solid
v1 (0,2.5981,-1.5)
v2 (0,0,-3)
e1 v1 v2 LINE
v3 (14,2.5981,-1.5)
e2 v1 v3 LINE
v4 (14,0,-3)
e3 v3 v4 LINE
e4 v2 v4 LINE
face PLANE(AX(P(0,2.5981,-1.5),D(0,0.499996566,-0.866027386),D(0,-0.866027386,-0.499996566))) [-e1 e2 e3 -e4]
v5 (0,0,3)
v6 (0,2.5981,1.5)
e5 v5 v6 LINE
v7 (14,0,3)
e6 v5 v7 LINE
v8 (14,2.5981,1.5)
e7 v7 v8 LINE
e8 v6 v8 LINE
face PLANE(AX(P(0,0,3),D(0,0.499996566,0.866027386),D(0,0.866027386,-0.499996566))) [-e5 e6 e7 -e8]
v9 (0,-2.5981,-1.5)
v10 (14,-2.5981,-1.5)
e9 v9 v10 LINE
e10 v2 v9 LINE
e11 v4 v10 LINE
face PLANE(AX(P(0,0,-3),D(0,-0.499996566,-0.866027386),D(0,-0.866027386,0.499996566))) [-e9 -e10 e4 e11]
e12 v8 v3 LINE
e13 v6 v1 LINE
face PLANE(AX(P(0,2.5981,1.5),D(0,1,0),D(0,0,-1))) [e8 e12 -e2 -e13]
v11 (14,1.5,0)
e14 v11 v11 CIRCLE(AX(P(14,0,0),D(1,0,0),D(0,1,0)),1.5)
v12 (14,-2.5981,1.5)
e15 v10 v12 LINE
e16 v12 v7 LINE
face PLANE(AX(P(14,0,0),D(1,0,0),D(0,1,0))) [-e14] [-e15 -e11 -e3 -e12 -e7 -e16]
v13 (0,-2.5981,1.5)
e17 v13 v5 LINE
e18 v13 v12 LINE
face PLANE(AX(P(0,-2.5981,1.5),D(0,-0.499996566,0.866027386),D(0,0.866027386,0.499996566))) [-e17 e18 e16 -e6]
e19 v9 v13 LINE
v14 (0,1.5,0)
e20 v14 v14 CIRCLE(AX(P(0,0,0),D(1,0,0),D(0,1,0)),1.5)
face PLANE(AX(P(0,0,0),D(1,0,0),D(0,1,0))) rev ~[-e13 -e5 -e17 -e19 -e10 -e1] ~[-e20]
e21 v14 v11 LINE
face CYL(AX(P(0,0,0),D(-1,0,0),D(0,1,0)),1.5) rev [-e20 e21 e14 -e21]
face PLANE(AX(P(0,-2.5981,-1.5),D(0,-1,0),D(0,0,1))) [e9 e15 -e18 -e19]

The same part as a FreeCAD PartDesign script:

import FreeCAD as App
import Part
import Sketcher

V = App.Vector


def add_polygon(sketch, points):
    """Adds a closed chain of lines whose ends are joined by coincident constraints."""
    first, n = sketch.GeometryCount, len(points)
    for a, b in zip(points, points[1:] + points[:1]):
        sketch.addGeometry(Part.LineSegment(App.Vector(*a, 0), App.Vector(*b, 0)), False)
    for i in range(n):
        sketch.addConstraint(Sketcher.Constraint("Coincident", first + i, 2, first + (i + 1) % n, 1))

doc = App.newDocument("Part")
body = doc.addObject("PartDesign::Body", "Body")

sketch1 = body.newObject("Sketcher::SketchObject", "Sketch")
sketch1.AttachmentSupport = (doc.getObject("YZ_Plane"), [""])
sketch1.MapMode = "FlatFace"
add_polygon(sketch1, [(2.6, 1.5), (0, 3), (-2.6, 1.5), (-2.6, -1.5), (0, -3), (2.6, -1.5)])
sketch1.addGeometry(Part.Circle(V(0, 0, 0), V(0, 0, 1), 1.5), False)
sketch1.addConstraint([
    Sketcher.Constraint("Vertical", 2),
    Sketcher.Constraint("Vertical", 5),
    Sketcher.Constraint("Coincident", 6, 3, -1, 1),
    Sketcher.Constraint("Symmetric", 0, 2, 3, 2, -1, 1),
    Sketcher.Constraint("Symmetric", 1, 2, 4, 2, -1, 1),
    Sketcher.Constraint("PointOnObject", 0, 2, -2),
    Sketcher.Constraint("Parallel", 0, 3),
    Sketcher.Constraint("Horizontal", 2, 2, 4, 2),
    Sketcher.Constraint("Diameter", 6, 3.0),
    Sketcher.Constraint("DistanceY", 2, 2, 2, 1, 3.0),
    Sketcher.Constraint("Distance", 0, 3.0),
    Sketcher.Constraint("DistanceY", -1, 1, 0, 2, 3.0),
])
pad1 = body.newObject("PartDesign::Pad", "Pad")
pad1.Profile = sketch1
pad1.Length = 14

doc.recompute()
